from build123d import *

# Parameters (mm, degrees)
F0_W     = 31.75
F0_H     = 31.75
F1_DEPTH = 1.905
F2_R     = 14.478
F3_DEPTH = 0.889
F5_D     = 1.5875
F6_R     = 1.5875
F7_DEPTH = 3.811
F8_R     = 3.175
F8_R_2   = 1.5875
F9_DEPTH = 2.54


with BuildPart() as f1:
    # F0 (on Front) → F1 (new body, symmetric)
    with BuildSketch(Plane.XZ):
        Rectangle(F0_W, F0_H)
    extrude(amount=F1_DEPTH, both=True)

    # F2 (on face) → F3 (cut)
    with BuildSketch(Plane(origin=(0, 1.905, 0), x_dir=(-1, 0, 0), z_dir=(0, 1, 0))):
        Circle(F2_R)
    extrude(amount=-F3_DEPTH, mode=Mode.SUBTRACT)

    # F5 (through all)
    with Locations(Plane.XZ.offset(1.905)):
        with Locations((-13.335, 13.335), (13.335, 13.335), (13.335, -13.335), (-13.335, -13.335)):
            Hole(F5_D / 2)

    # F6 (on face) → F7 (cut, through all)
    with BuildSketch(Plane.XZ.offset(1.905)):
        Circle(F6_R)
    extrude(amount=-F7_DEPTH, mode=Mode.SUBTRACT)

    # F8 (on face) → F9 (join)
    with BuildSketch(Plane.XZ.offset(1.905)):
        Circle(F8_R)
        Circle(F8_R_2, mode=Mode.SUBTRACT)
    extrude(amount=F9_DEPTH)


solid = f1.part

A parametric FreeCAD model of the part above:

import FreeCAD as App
import Part
import Sketcher
from FreeCAD import Vector
Q = App.Units.Quantity


def add_polygon(sketch, points):
    """Adds a closed chain of lines whose ends are joined by coincident constraints."""
    first, n = sketch.GeometryCount, len(points)
    for a, b in zip(points, points[1:] + points[:1]):
        sketch.addGeometry(Part.LineSegment(App.Vector(*a, 0), App.Vector(*b, 0)), False)
    for i in range(n):
        sketch.addConstraint(Sketcher.Constraint("Coincident", first + i, 2, first + (i + 1) % n, 1))

doc = App.newDocument("Part")
body = doc.addObject("PartDesign::Body", "Body")

# Sketch on XZ plane
sketch1 = doc.addObject("Sketcher::SketchObject", "Sketch")
body.addObject(sketch1)
sketch1.AttachmentSupport = (doc.XZ_Plane, [""])
sketch1.MapMode = "FlatFace"
add_polygon(sketch1, [(-16, 16), (-16, -16), (16, -16), (16, 16)])  # lines 0-3
sketch1.addConstraint([
    Sketcher.Constraint("Vertical", 0),
    Sketcher.Constraint("Horizontal", 1),
    Sketcher.Constraint("Vertical", 2),
    Sketcher.Constraint("Horizontal", 3),
    Sketcher.Constraint("Symmetric", 0, 2, 2, 2, -1, 1),
    Sketcher.Constraint("Equal", 3, 0),
    Sketcher.Constraint("DistanceX", 1, 1, 1, 2, Q("1.25 in")),
])
pad1 = doc.addObject("PartDesign::Pad", "Pad")
body.addObject(pad1)
pad1.Profile = sketch1
pad1.Length = Q("0.15 in")
pad1.Midplane = True

# Sketch on XZ plane
sketch2 = doc.addObject("Sketcher::SketchObject", "Sketch001")
body.addObject(sketch2)
sketch2.AttachmentSupport = (doc.XZ_Plane, [""])
sketch2.MapMode = "FlatFace"
sketch2.AttachmentOffset = App.Placement(Vector(0, 0, -0.075 * 25.4), App.Rotation())
sketch2.addGeometry(Part.Circle(Vector(0, 0, 0), Vector(0, 0, 1), 14), False)
sketch2.addConstraint([
    Sketcher.Constraint("Coincident", 0, 3, -1, 1),
    Sketcher.Constraint("Diameter", 0, Q("1.14 in")),
])
pocket1 = doc.addObject("PartDesign::Pocket", "Pocket")
body.addObject(pocket1)
pocket1.Profile = sketch2
pocket1.Length = Q("0.035 in")
pocket1.Reversed = True

# Sketch on XZ plane
sketch3 = doc.addObject("Sketcher::SketchObject", "Sketch002")
body.addObject(sketch3)
sketch3.AttachmentSupport = (doc.XZ_Plane, [""])
sketch3.MapMode = "FlatFace"
sketch3.AttachmentOffset = App.Placement(Vector(0, 0, 0.075 * 25.4), App.Rotation())
sketch3.addGeometry([
    Part.Circle(Vector(-13.3, 13.3, 0), Vector(0, 0, 1), 0.8),
    Part.Circle(Vector(13.3, 13.3, 0), Vector(0, 0, 1), 0.8),
    Part.Circle(Vector(13.3, -13.3, 0), Vector(0, 0, 1), 0.8),
    Part.Circle(Vector(-13.3, -13.3, 0), Vector(0, 0, 1), 0.8),
], False)
sketch3.addConstraint([
    Sketcher.Constraint("Equal", 0, 1),
    Sketcher.Constraint("Equal", 1, 2),
    Sketcher.Constraint("Equal", 2, 3),
    Sketcher.Constraint("Symmetric", 0, 3, 2, 3, -1, 1),
    Sketcher.Constraint("Symmetric", 1, 3, 3, 3, -1, 1),
    Sketcher.Constraint("Symmetric", 0, 3, 1, 3, -2),
    Sketcher.Constraint("Diameter", 0, Q("0.0625 in")),
    Sketcher.Constraint("DistanceX", 0, 3, 1, 3, Q("1.05 in")),
    Sketcher.Constraint("DistanceY", 2, 3, 1, 3, Q("1.05 in")),
])
doc.recompute()
hole = doc.addObject("PartDesign::Hole", "Hole")
body.addObject(hole)
hole.Profile = sketch3
hole.ThreadType = "None"
hole.Diameter = Q("0.0625 in")
hole.DepthType = "ThroughAll"

# Sketch on XZ plane
sketch4 = doc.addObject("Sketcher::SketchObject", "Sketch003")
body.addObject(sketch4)
sketch4.AttachmentSupport = (doc.XZ_Plane, [""])
sketch4.MapMode = "FlatFace"
sketch4.AttachmentOffset = App.Placement(Vector(0, 0, 0.075 * 25.4), App.Rotation())
sketch4.addGeometry(Part.Circle(Vector(0, 0, 0), Vector(0, 0, 1), 1.6), False)
sketch4.addConstraint([
    Sketcher.Constraint("Coincident", 0, 3, -1, 1),
    Sketcher.Constraint("Diameter", 0, Q("0.125 in")),
])
pocket2 = doc.addObject("PartDesign::Pocket", "Pocket001")
body.addObject(pocket2)
pocket2.Profile = sketch4
pocket2.Type = "ThroughAll"

# Sketch on XZ plane
sketch5 = doc.addObject("Sketcher::SketchObject", "Sketch004")
body.addObject(sketch5)
sketch5.AttachmentSupport = (doc.XZ_Plane, [""])
sketch5.MapMode = "FlatFace"
sketch5.AttachmentOffset = App.Placement(Vector(0, 0, 0.075 * 25.4), App.Rotation())
sketch5.addGeometry([
    Part.Circle(Vector(0, 0, 0), Vector(0, 0, 1), 3.2),
    Part.Circle(Vector(0, 0, 0), Vector(0, 0, 1), 1.6),
], False)
sketch5.addConstraint([
    Sketcher.Constraint("Coincident", 0, 3, -1, 1),
    Sketcher.Constraint("Coincident", 1, 3, -1, 1),
    Sketcher.Constraint("Diameter", 0, Q("0.25 in")),
    Sketcher.Constraint("Diameter", 1, Q("0.125 in")),
])
pad2 = doc.addObject("PartDesign::Pad", "Pad001")
body.addObject(pad2)
pad2.Profile = sketch5
pad2.Length = Q("0.1 in")

doc.recompute()
